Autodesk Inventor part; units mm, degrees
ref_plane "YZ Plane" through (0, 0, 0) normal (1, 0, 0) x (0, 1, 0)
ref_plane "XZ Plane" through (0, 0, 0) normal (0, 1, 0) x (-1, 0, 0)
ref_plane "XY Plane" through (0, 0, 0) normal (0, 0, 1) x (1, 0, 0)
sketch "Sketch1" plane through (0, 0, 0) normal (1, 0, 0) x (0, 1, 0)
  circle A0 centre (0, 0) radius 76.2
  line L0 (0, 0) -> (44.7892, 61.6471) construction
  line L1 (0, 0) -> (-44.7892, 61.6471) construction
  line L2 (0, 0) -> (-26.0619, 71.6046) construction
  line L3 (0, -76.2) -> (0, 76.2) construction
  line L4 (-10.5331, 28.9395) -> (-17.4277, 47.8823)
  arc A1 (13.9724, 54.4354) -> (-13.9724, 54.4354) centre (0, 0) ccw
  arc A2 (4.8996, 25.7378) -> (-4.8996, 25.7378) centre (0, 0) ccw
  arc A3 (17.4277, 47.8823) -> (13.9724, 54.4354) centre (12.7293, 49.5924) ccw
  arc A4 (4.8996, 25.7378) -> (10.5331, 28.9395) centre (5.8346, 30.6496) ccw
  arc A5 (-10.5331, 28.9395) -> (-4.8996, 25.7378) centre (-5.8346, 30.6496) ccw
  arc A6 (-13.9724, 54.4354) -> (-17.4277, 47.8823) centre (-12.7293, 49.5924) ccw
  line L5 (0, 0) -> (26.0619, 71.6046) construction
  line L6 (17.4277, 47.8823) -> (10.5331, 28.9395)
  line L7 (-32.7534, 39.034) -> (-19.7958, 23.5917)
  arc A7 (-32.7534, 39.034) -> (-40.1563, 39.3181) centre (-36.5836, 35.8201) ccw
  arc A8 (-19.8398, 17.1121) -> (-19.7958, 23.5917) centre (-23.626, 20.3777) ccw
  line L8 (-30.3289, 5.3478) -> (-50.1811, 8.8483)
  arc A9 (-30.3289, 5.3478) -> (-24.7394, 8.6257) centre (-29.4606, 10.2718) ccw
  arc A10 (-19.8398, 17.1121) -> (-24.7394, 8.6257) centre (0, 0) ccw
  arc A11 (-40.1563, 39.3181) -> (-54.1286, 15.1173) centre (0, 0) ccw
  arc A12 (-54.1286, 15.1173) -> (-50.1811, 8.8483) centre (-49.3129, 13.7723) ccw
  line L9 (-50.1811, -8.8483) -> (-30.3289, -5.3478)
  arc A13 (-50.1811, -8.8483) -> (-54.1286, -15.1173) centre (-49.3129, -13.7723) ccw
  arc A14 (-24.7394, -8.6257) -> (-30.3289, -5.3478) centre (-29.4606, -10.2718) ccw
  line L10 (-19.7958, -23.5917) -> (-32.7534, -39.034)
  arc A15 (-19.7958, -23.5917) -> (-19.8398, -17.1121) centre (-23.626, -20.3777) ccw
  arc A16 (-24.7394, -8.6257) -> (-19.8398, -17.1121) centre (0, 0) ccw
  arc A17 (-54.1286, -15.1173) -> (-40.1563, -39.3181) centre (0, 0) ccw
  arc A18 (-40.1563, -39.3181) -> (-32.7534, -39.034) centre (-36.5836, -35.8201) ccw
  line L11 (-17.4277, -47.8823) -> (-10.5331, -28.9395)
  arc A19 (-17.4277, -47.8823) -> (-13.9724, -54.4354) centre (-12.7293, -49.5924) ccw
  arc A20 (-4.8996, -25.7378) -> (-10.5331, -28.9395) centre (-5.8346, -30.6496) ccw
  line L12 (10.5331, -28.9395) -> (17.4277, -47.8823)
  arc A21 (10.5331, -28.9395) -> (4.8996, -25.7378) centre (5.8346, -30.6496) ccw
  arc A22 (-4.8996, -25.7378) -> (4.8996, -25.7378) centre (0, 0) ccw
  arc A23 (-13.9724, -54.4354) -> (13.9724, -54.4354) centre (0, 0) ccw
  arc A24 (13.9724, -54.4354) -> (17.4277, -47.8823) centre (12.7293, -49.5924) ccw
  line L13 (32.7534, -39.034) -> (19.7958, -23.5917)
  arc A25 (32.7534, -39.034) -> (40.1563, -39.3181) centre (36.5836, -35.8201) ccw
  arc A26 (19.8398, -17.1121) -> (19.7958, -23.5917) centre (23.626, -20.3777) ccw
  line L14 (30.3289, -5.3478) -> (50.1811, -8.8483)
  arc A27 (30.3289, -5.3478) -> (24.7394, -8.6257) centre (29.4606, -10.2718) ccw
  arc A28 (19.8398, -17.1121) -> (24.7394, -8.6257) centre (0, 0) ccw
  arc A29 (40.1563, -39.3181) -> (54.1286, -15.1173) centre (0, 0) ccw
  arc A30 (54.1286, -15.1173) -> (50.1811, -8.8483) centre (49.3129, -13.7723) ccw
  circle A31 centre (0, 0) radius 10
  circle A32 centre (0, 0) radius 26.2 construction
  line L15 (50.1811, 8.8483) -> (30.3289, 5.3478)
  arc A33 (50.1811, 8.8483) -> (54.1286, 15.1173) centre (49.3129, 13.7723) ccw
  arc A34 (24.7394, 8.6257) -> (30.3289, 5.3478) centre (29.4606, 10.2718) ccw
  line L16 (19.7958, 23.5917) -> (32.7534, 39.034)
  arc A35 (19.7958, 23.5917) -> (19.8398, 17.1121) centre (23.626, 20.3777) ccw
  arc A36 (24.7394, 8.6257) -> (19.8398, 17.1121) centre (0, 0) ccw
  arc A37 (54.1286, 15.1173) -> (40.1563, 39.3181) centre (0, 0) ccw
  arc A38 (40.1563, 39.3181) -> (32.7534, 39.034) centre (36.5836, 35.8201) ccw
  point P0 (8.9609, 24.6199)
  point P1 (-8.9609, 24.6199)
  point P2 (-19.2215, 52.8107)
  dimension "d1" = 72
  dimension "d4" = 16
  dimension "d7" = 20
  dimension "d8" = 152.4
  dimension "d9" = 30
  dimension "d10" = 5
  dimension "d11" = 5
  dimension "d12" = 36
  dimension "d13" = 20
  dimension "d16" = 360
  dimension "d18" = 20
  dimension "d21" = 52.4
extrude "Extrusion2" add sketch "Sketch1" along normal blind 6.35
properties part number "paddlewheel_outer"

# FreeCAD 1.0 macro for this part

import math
import FreeCAD as App
import Part
import Sketcher
Q = App.Units.Quantity

doc = App.newDocument("Part")
body = doc.addObject("PartDesign::Body", "Body")

# Sketch on YZ plane
sketch1 = body.newObject("Sketcher::SketchObject", "Sketch")
sketch1.AttachmentSupport = (doc.getObject("YZ_Plane"), [""])
sketch1.MapMode = "FlatFace"
sketch1.addGeometry(Part.Circle(App.Vector(0, 0, 0), App.Vector(0, 0, 1), 76.2), False)
sketch1.addGeometry(Part.ArcOfCircle(Part.Circle(App.Vector(-49.3, -13.8, 0), App.Vector(0, 0, 1), 5), math.radians(100), math.radians(196)), False)
sketch1.addGeometry(Part.LineSegment(App.Vector(-50.2, -8.8, 0), App.Vector(-30.3, -5.3, 0)), False)
sketch1.addGeometry(Part.ArcOfCircle(Part.Circle(App.Vector(-29.5, -10.3, 0), App.Vector(0, 0, 1), 5), math.radians(19), math.radians(100)), False)
sketch1.addGeometry(Part.ArcOfCircle(Part.Circle(App.Vector(0, 0, 0), App.Vector(0, 0, 1), 26.2), math.radians(-161), math.radians(-139)), False)
sketch1.addGeometry(Part.ArcOfCircle(Part.Circle(App.Vector(-23.6, -20.4, 0), App.Vector(0, 0, 1), 5), math.radians(-40), math.radians(41)), False)
sketch1.addGeometry(Part.LineSegment(App.Vector(-19.8, -23.6, 0), App.Vector(-32.8, -39, 0)), False)
sketch1.addGeometry(Part.ArcOfCircle(Part.Circle(App.Vector(-36.6, -35.8, 0), App.Vector(0, 0, 1), 5), math.radians(-136), math.radians(-40)), False)
sketch1.addGeometry(Part.ArcOfCircle(Part.Circle(App.Vector(0, 0, 0), App.Vector(0, 0, 1), 56.2), math.radians(-164), math.radians(-136)), False)
sketch1.addGeometry(Part.ArcOfCircle(Part.Circle(App.Vector(-12.7, -49.6, 0), App.Vector(0, 0, 1), 5), math.radians(160), math.radians(256)), False)
sketch1.addGeometry(Part.LineSegment(App.Vector(-17.4, -47.9, 0), App.Vector(-10.5, -28.9, 0)), False)
sketch1.addGeometry(Part.ArcOfCircle(Part.Circle(App.Vector(-5.8, -30.6, 0), App.Vector(0, 0, 1), 5), math.radians(79), math.radians(160)), False)
sketch1.addGeometry(Part.ArcOfCircle(Part.Circle(App.Vector(0, 0, 0), App.Vector(0, 0, 1), 26.2), math.radians(-101), math.radians(-79)), False)
sketch1.addGeometry(Part.ArcOfCircle(Part.Circle(App.Vector(5.8, -30.6, 0), App.Vector(0, 0, 1), 5), math.radians(20), math.radians(101)), False)
sketch1.addGeometry(Part.LineSegment(App.Vector(10.5, -28.9, 0), App.Vector(17.4, -47.9, 0)), False)
sketch1.addGeometry(Part.ArcOfCircle(Part.Circle(App.Vector(12.7, -49.6, 0), App.Vector(0, 0, 1), 5), math.radians(-76), math.radians(20)), False)
sketch1.addGeometry(Part.ArcOfCircle(Part.Circle(App.Vector(0, 0, 0), App.Vector(0, 0, 1), 56.2), math.radians(-104), math.radians(-76)), False)
sketch1.addGeometry(Part.ArcOfCircle(Part.Circle(App.Vector(36.6, -35.8, 0), App.Vector(0, 0, 1), 5), math.radians(-140), math.radians(-44)), False)
sketch1.addGeometry(Part.LineSegment(App.Vector(32.8, -39, 0), App.Vector(19.8, -23.6, 0)), False)
sketch1.addGeometry(Part.ArcOfCircle(Part.Circle(App.Vector(23.6, -20.4, 0), App.Vector(0, 0, 1), 5), math.radians(139), math.radians(220)), False)
sketch1.addGeometry(Part.ArcOfCircle(Part.Circle(App.Vector(0, 0, 0), App.Vector(0, 0, 1), 26.2), math.radians(-41), math.radians(-19)), False)
sketch1.addGeometry(Part.ArcOfCircle(Part.Circle(App.Vector(29.5, -10.3, 0), App.Vector(0, 0, 1), 5), math.radians(80), math.radians(161)), False)
sketch1.addGeometry(Part.LineSegment(App.Vector(30.3, -5.3, 0), App.Vector(50.2, -8.8, 0)), False)
sketch1.addGeometry(Part.ArcOfCircle(Part.Circle(App.Vector(49.3, -13.8, 0), App.Vector(0, 0, 1), 5), math.radians(-16), math.radians(80)), False)
sketch1.addGeometry(Part.ArcOfCircle(Part.Circle(App.Vector(0, 0, 0), App.Vector(0, 0, 1), 56.2), math.radians(-44), math.radians(-16)), False)
sketch1.addGeometry(Part.ArcOfCircle(Part.Circle(App.Vector(-36.6, 35.8, 0), App.Vector(0, 0, 1), 5), math.radians(40), math.radians(136)), False)
sketch1.addGeometry(Part.LineSegment(App.Vector(-32.8, 39, 0), App.Vector(-19.8, 23.6, 0)), False)
sketch1.addGeometry(Part.ArcOfCircle(Part.Circle(App.Vector(-23.6, 20.4, 0), App.Vector(0, 0, 1), 5), math.radians(-41), math.radians(40)), False)
sketch1.addGeometry(Part.ArcOfCircle(Part.Circle(App.Vector(0, 0, 0), App.Vector(0, 0, 1), 26.2), math.radians(139), math.radians(161)), False)
sketch1.addGeometry(Part.ArcOfCircle(Part.Circle(App.Vector(-29.5, 10.3, 0), App.Vector(0, 0, 1), 5), math.radians(-100), math.radians(-19)), False)
sketch1.addGeometry(Part.LineSegment(App.Vector(-30.3, 5.3, 0), App.Vector(-50.2, 8.8, 0)), False)
sketch1.addGeometry(Part.ArcOfCircle(Part.Circle(App.Vector(-49.3, 13.8, 0), App.Vector(0, 0, 1), 5), math.radians(164), math.radians(260)), False)
sketch1.addGeometry(Part.ArcOfCircle(Part.Circle(App.Vector(0, 0, 0), App.Vector(0, 0, 1), 56.2), math.radians(136), math.radians(164)), False)
sketch1.addGeometry(Part.ArcOfCircle(Part.Circle(App.Vector(-5.8, 30.6, 0), App.Vector(0, 0, 1), 5), math.radians(-160), math.radians(-79)), False)
sketch1.addGeometry(Part.LineSegment(App.Vector(-10.5, 28.9, 0), App.Vector(-17.4, 47.9, 0)), False)
sketch1.addGeometry(Part.ArcOfCircle(Part.Circle(App.Vector(-12.7, 49.6, 0), App.Vector(0, 0, 1), 5), math.radians(104), math.radians(200)), False)
sketch1.addGeometry(Part.ArcOfCircle(Part.Circle(App.Vector(0, 0, 0), App.Vector(0, 0, 1), 56.2), math.radians(76), math.radians(104)), False)
sketch1.addGeometry(Part.ArcOfCircle(Part.Circle(App.Vector(12.7, 49.6, 0), App.Vector(0, 0, 1), 5), math.radians(-20), math.radians(76)), False)
sketch1.addGeometry(Part.LineSegment(App.Vector(17.4, 47.9, 0), App.Vector(10.5, 28.9, 0)), False)
sketch1.addGeometry(Part.ArcOfCircle(Part.Circle(App.Vector(5.8, 30.6, 0), App.Vector(0, 0, 1), 5), math.radians(-101), math.radians(-20)), False)
sketch1.addGeometry(Part.ArcOfCircle(Part.Circle(App.Vector(0, 0, 0), App.Vector(0, 0, 1), 26.2), math.radians(79), math.radians(101)), False)
sketch1.addGeometry(Part.Circle(App.Vector(0, 0, 0), App.Vector(0, 0, 1), 10), False)
sketch1.addGeometry(Part.ArcOfCircle(Part.Circle(App.Vector(49.3, 13.8, 0), App.Vector(0, 0, 1), 5), math.radians(-80), math.radians(16)), False)
sketch1.addGeometry(Part.LineSegment(App.Vector(50.2, 8.8, 0), App.Vector(30.3, 5.3, 0)), False)
sketch1.addGeometry(Part.ArcOfCircle(Part.Circle(App.Vector(29.5, 10.3, 0), App.Vector(0, 0, 1), 5), math.radians(-161), math.radians(-80)), False)
sketch1.addGeometry(Part.ArcOfCircle(Part.Circle(App.Vector(0, 0, 0), App.Vector(0, 0, 1), 26.2), math.radians(19), math.radians(41)), False)
sketch1.addGeometry(Part.ArcOfCircle(Part.Circle(App.Vector(23.6, 20.4, 0), App.Vector(0, 0, 1), 5), math.radians(140), math.radians(221)), False)
sketch1.addGeometry(Part.LineSegment(App.Vector(19.8, 23.6, 0), App.Vector(32.8, 39, 0)), False)
sketch1.addGeometry(Part.ArcOfCircle(Part.Circle(App.Vector(36.6, 35.8, 0), App.Vector(0, 0, 1), 5), math.radians(44), math.radians(140)), False)
sketch1.addGeometry(Part.ArcOfCircle(Part.Circle(App.Vector(0, 0, 0), App.Vector(0, 0, 1), 56.2), math.radians(16), math.radians(44)), False)
sketch1.addConstraint(Sketcher.Constraint("Tangent", 1, 1, 2, 1))
sketch1.addConstraint(Sketcher.Constraint("Tangent", 2, 2, 3, 2))
sketch1.addConstraint(Sketcher.Constraint("Tangent", 3, 1, 4, 1))
sketch1.addConstraint(Sketcher.Constraint("Tangent", 4, 2, 5, 2))
sketch1.addConstraint(Sketcher.Constraint("Tangent", 5, 1, 6, 1))
sketch1.addConstraint(Sketcher.Constraint("Tangent", 6, 2, 7, 2))
sketch1.addConstraint(Sketcher.Constraint("Tangent", 7, 1, 8, 2))
sketch1.addConstraint(Sketcher.Constraint("Tangent", 8, 1, 1, 2))
sketch1.addConstraint(Sketcher.Constraint("Tangent", 9, 1, 10, 1))
sketch1.addConstraint(Sketcher.Constraint("Tangent", 10, 2, 11, 2))
sketch1.addConstraint(Sketcher.Constraint("Tangent", 11, 1, 12, 1))
sketch1.addConstraint(Sketcher.Constraint("Tangent", 12, 2, 13, 2))
sketch1.addConstraint(Sketcher.Constraint("Tangent", 13, 1, 14, 1))
sketch1.addConstraint(Sketcher.Constraint("Tangent", 14, 2, 15, 2))
sketch1.addConstraint(Sketcher.Constraint("Tangent", 15, 1, 16, 2))
sketch1.addConstraint(Sketcher.Constraint("Tangent", 16, 1, 9, 2))
sketch1.addConstraint(Sketcher.Constraint("Tangent", 17, 1, 18, 1))
sketch1.addConstraint(Sketcher.Constraint("Tangent", 18, 2, 19, 2))
sketch1.addConstraint(Sketcher.Constraint("Tangent", 19, 1, 20, 1))
sketch1.addConstraint(Sketcher.Constraint("Tangent", 20, 2, 21, 2))
sketch1.addConstraint(Sketcher.Constraint("Tangent", 21, 1, 22, 1))
sketch1.addConstraint(Sketcher.Constraint("Tangent", 22, 2, 23, 2))
sketch1.addConstraint(Sketcher.Constraint("Tangent", 23, 1, 24, 2))
sketch1.addConstraint(Sketcher.Constraint("Tangent", 24, 1, 17, 2))
sketch1.addConstraint(Sketcher.Constraint("Tangent", 25, 1, 26, 1))
sketch1.addConstraint(Sketcher.Constraint("Tangent", 26, 2, 27, 2))
sketch1.addConstraint(Sketcher.Constraint("Tangent", 27, 1, 28, 1))
sketch1.addConstraint(Sketcher.Constraint("Tangent", 28, 2, 29, 2))
sketch1.addConstraint(Sketcher.Constraint("Tangent", 29, 1, 30, 1))
sketch1.addConstraint(Sketcher.Constraint("Tangent", 30, 2, 31, 2))
sketch1.addConstraint(Sketcher.Constraint("Tangent", 31, 1, 32, 2))
sketch1.addConstraint(Sketcher.Constraint("Tangent", 32, 1, 25, 2))
sketch1.addConstraint(Sketcher.Constraint("Tangent", 33, 1, 34, 1))
sketch1.addConstraint(Sketcher.Constraint("Tangent", 34, 2, 35, 2))
sketch1.addConstraint(Sketcher.Constraint("Tangent", 35, 1, 36, 2))
sketch1.addConstraint(Sketcher.Constraint("Tangent", 36, 1, 37, 2))
sketch1.addConstraint(Sketcher.Constraint("Tangent", 37, 1, 38, 1))
sketch1.addConstraint(Sketcher.Constraint("Tangent", 38, 2, 39, 2))
sketch1.addConstraint(Sketcher.Constraint("Tangent", 39, 1, 40, 1))
sketch1.addConstraint(Sketcher.Constraint("Tangent", 40, 2, 33, 2))
sketch1.addConstraint(Sketcher.Constraint("Tangent", 42, 1, 43, 1))
sketch1.addConstraint(Sketcher.Constraint("Tangent", 43, 2, 44, 2))
sketch1.addConstraint(Sketcher.Constraint("Tangent", 44, 1, 45, 1))
sketch1.addConstraint(Sketcher.Constraint("Tangent", 45, 2, 46, 2))
sketch1.addConstraint(Sketcher.Constraint("Tangent", 46, 1, 47, 1))
sketch1.addConstraint(Sketcher.Constraint("Tangent", 47, 2, 48, 2))
sketch1.addConstraint(Sketcher.Constraint("Tangent", 48, 1, 49, 2))
sketch1.addConstraint(Sketcher.Constraint("Tangent", 49, 1, 42, 2))
sketch1.addConstraint(Sketcher.Constraint("Coincident", 0, 3, -1, 1))
sketch1.addConstraint(Sketcher.Constraint("Coincident", 4, 3, -1, 1))
sketch1.addConstraint(Sketcher.Constraint("Coincident", 8, 3, -1, 1))
sketch1.addConstraint(Sketcher.Constraint("Coincident", 12, 3, -1, 1))
sketch1.addConstraint(Sketcher.Constraint("Coincident", 16, 3, -1, 1))
sketch1.addConstraint(Sketcher.Constraint("Coincident", 20, 3, -1, 1))
sketch1.addConstraint(Sketcher.Constraint("Coincident", 24, 3, -1, 1))
sketch1.addConstraint(Sketcher.Constraint("Coincident", 28, 3, -1, 1))
sketch1.addConstraint(Sketcher.Constraint("Coincident", 32, 3, -1, 1))
sketch1.addConstraint(Sketcher.Constraint("Coincident", 36, 3, -1, 1))
sketch1.addConstraint(Sketcher.Constraint("Coincident", 40, 3, -1, 1))
sketch1.addConstraint(Sketcher.Constraint("Coincident", 41, 3, -1, 1))
sketch1.addConstraint(Sketcher.Constraint("Coincident", 45, 3, -1, 1))
sketch1.addConstraint(Sketcher.Constraint("Coincident", 49, 3, -1, 1))
sketch1.addConstraint(Sketcher.Constraint("Equal", 1, 3))
sketch1.addConstraint(Sketcher.Constraint("Equal", 3, 5))
sketch1.addConstraint(Sketcher.Constraint("Equal", 5, 7))
sketch1.addConstraint(Sketcher.Constraint("Equal", 7, 9))
sketch1.addConstraint(Sketcher.Constraint("Equal", 9, 11))
sketch1.addConstraint(Sketcher.Constraint("Equal", 4, 12))
sketch1.addConstraint(Sketcher.Constraint("Equal", 11, 13))
sketch1.addConstraint(Sketcher.Constraint("Equal", 13, 15))
sketch1.addConstraint(Sketcher.Constraint("Equal", 8, 16))
sketch1.addConstraint(Sketcher.Constraint("Equal", 15, 17))
sketch1.addConstraint(Sketcher.Constraint("Equal", 17, 19))
sketch1.addConstraint(Sketcher.Constraint("Equal", 12, 20))
sketch1.addConstraint(Sketcher.Constraint("Equal", 19, 21))
sketch1.addConstraint(Sketcher.Constraint("Equal", 21, 23))
sketch1.addConstraint(Sketcher.Constraint("Equal", 16, 24))
sketch1.addConstraint(Sketcher.Constraint("Equal", 23, 25))
sketch1.addConstraint(Sketcher.Constraint("Equal", 25, 27))
sketch1.addConstraint(Sketcher.Constraint("Equal", 20, 28))
sketch1.addConstraint(Sketcher.Constraint("Equal", 27, 29))
sketch1.addConstraint(Sketcher.Constraint("Equal", 29, 31))
sketch1.addConstraint(Sketcher.Constraint("Equal", 24, 32))
sketch1.addConstraint(Sketcher.Constraint("Equal", 31, 33))
sketch1.addConstraint(Sketcher.Constraint("Equal", 33, 35))
sketch1.addConstraint(Sketcher.Constraint("Equal", 32, 36))
sketch1.addConstraint(Sketcher.Constraint("Equal", 35, 37))
sketch1.addConstraint(Sketcher.Constraint("Equal", 37, 39))
sketch1.addConstraint(Sketcher.Constraint("Equal", 28, 40))
sketch1.addConstraint(Sketcher.Constraint("Equal", 39, 42))
sketch1.addConstraint(Sketcher.Constraint("Equal", 42, 44))
sketch1.addConstraint(Sketcher.Constraint("Equal", 40, 45))
sketch1.addConstraint(Sketcher.Constraint("Equal", 44, 46))
sketch1.addConstraint(Sketcher.Constraint("Equal", 46, 48))
sketch1.addConstraint(Sketcher.Constraint("Equal", 36, 49))
sketch1.addConstraint(Sketcher.Constraint("Symmetric", 17, 1, 25, 1, -1, 1))
sketch1.addConstraint(Sketcher.Constraint("Symmetric", 21, 1, 29, 1, -1, 1))
sketch1.addConstraint(Sketcher.Constraint("Symmetric", 13, 1, 33, 1, -1, 1))
sketch1.addConstraint(Sketcher.Constraint("Symmetric", 9, 1, 37, 1, -1, 1))
sketch1.addConstraint(Sketcher.Constraint("Symmetric", 1, 1, 42, 1, -1, 1))
sketch1.addConstraint(Sketcher.Constraint("Symmetric", 5, 1, 46, 1, -1, 1))
sketch1.addConstraint(Sketcher.Constraint("Symmetric", 10, 2, 13, 1, -2))
sketch1.addConstraint(Sketcher.Constraint("Symmetric", 6, 2, 17, 1, -2))
sketch1.addConstraint(Sketcher.Constraint("Symmetric", 2, 2, 21, 1, -2))
sketch1.addConstraint(Sketcher.Constraint("Equal", 2, 6))
sketch1.addConstraint(Sketcher.Constraint("Equal", 6, 10))
sketch1.addConstraint(Sketcher.Constraint("Diameter", 0, Q("6 in")))
sketch1.addConstraint(Sketcher.Constraint("Diameter", 41, Q("0.7874 in")))
sketch1.addConstraint(Sketcher.Constraint("Radius", 4, Q("1.0315 in")))
sketch1.addConstraint(Sketcher.Constraint("Radius", 1, Q("5 mm")))
sketch1.addConstraint(Sketcher.Constraint("Angle", 2, Q("10 deg")))
sketch1.addConstraint(Sketcher.Constraint("Angle", 6, Q("-130 deg")))
sketch1.addConstraint(Sketcher.Constraint("Angle", 10, Q("70 deg")))
sketch1.addConstraint(Sketcher.Constraint("Radius", 8, Q("2.2126 in")))
sketch1.addConstraint(Sketcher.Constraint("DistanceX", 3, 1, -1, 1, Q("0.974 in")))
pad1 = body.newObject("PartDesign::Pad", "Pad")
pad1.Profile = sketch1
pad1.Length = Q("0.25 in")

doc.recompute()
